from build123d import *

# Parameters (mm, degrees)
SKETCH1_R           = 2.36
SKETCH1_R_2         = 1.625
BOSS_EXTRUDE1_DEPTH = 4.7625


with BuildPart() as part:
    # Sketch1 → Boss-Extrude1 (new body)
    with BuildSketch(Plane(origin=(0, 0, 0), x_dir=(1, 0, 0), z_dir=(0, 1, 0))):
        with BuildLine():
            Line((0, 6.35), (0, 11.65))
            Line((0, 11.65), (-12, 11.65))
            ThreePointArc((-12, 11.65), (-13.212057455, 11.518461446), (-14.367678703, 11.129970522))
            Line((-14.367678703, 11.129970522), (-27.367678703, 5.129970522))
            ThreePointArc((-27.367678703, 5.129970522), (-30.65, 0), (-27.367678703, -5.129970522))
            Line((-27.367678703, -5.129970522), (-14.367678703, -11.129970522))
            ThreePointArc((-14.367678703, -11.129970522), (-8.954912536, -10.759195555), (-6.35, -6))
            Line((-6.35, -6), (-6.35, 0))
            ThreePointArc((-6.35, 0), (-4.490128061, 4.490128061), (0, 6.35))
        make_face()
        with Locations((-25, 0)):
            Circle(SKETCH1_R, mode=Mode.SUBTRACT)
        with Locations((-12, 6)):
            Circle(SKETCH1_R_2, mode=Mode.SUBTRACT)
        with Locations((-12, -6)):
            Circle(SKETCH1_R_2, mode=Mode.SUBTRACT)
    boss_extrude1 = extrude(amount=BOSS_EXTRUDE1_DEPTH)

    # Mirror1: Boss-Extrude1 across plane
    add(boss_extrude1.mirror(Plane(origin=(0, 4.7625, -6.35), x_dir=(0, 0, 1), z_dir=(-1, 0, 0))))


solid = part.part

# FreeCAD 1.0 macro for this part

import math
import FreeCAD as App
import Part
import Sketcher
Q = App.Units.Quantity

doc = App.newDocument("Part")
body = doc.addObject("PartDesign::Body", "Body")

# Sketch on XZ plane
sketch1 = body.newObject("Sketcher::SketchObject", "Sketch")
sketch1.AttachmentSupport = (doc.getObject("XZ_Plane"), [""])
sketch1.MapMode = "FlatFace"
sketch1.addGeometry([
    Part.LineSegment(App.Vector(0, -6.35, 0), App.Vector(0, -11.65, 0)),  # 0
    Part.LineSegment(App.Vector(0, -11.65, 0), App.Vector(-12, -11.65, 0)),  # 1
    Part.ArcOfCircle(Part.Circle(App.Vector(-12, -6, 0), App.Vector(0, 0, 1), 5.65), math.radians(-114.775141), math.radians(-90)),  # 2
    Part.LineSegment(App.Vector(-14.367679, -11.129971, 0), App.Vector(-27.367679, -5.129971, 0)),  # 3
    Part.ArcOfCircle(Part.Circle(App.Vector(-25, 0, 0), App.Vector(0, 0, 1), 5.65), math.radians(114.775141), math.radians(245.224859)),  # 4
    Part.LineSegment(App.Vector(-27.367679, 5.129971, 0), App.Vector(-14.367679, 11.129971, 0)),  # 5
    Part.ArcOfCircle(Part.Circle(App.Vector(-12, 6, 0), App.Vector(0, 0, 1), 5.65), math.radians(0), math.radians(114.775141)),  # 6
    Part.LineSegment(App.Vector(-6.35, 6, 0), App.Vector(-6.35, 0, 0)),  # 7
    Part.ArcOfCircle(Part.Circle(App.Vector(0, 0, 0), App.Vector(0, 0, 1), 6.35), math.radians(180), math.radians(270)),  # 8
    Part.Circle(App.Vector(-12, 6, 0), App.Vector(0, 0, 1), 1.625),  # 9
    Part.Circle(App.Vector(-25, 0, 0), App.Vector(0, 0, 1), 2.36),  # 10
    Part.Circle(App.Vector(-12, -6, 0), App.Vector(0, 0, 1), 1.625),  # 11
], False)
sketch1.addConstraint([
    Sketcher.Constraint("Coincident", 0, 2, 1, 1),
    Sketcher.Constraint("Tangent", 1, 2, 2, 2),
    Sketcher.Constraint("Tangent", 2, 1, 3, 1),
    Sketcher.Constraint("Tangent", 3, 2, 4, 2),
    Sketcher.Constraint("Tangent", 4, 1, 5, 1),
    Sketcher.Constraint("Tangent", 5, 2, 6, 2),
    Sketcher.Constraint("Tangent", 6, 1, 7, 1),
    Sketcher.Constraint("Tangent", 7, 2, 8, 1),
    Sketcher.Constraint("Coincident", 8, 2, 0, 1),
    Sketcher.Constraint("Vertical", 0),
    Sketcher.Constraint("Horizontal", 1),
    Sketcher.Constraint("Vertical", 7),
    Sketcher.Constraint("Coincident", 8, 3, -1, 1),
    Sketcher.Constraint("Coincident", 9, 3, 6, 3),
    Sketcher.Constraint("Coincident", 10, 3, 4, 3),
    Sketcher.Constraint("Coincident", 11, 3, 2, 3),
    Sketcher.Constraint("Equal", 2, 4),
    Sketcher.Constraint("Equal", 4, 6),
    Sketcher.Constraint("Equal", 9, 11),
    Sketcher.Constraint("Symmetric", 2, 3, 6, 3, -1),
    Sketcher.Constraint("PointOnObject", 4, 3, -1),
    Sketcher.Constraint("PointOnObject", 0, 2, -2),
    Sketcher.Constraint("Diameter", 9, Q("3.25 mm")),
    Sketcher.Constraint("Diameter", 10, Q("4.72 mm")),
    Sketcher.Constraint("DistanceX", 1, 2, 1, 1, Q("12 mm")),
    Sketcher.Constraint("DistanceY", 7, 2, 7, 1, Q("6 mm")),
    Sketcher.Constraint("Radius", 2, Q("5.65 mm")),
    Sketcher.Constraint("DistanceX", 4, 3, -1, 1, Q("25 mm")),
])
pad1 = body.newObject("PartDesign::Pad", "Pad")
pad1.Profile = sketch1
pad1.Length = 4.7625
pad1.Reversed = True
doc.recompute()

mirrored = body.newObject("PartDesign::Mirrored", "Mirrored")
mirrored.Originals = [pad1]
mirrored.MirrorPlane = (doc.getObject("YZ_Plane"), [""])
body.Tip = mirrored

doc.recompute()
